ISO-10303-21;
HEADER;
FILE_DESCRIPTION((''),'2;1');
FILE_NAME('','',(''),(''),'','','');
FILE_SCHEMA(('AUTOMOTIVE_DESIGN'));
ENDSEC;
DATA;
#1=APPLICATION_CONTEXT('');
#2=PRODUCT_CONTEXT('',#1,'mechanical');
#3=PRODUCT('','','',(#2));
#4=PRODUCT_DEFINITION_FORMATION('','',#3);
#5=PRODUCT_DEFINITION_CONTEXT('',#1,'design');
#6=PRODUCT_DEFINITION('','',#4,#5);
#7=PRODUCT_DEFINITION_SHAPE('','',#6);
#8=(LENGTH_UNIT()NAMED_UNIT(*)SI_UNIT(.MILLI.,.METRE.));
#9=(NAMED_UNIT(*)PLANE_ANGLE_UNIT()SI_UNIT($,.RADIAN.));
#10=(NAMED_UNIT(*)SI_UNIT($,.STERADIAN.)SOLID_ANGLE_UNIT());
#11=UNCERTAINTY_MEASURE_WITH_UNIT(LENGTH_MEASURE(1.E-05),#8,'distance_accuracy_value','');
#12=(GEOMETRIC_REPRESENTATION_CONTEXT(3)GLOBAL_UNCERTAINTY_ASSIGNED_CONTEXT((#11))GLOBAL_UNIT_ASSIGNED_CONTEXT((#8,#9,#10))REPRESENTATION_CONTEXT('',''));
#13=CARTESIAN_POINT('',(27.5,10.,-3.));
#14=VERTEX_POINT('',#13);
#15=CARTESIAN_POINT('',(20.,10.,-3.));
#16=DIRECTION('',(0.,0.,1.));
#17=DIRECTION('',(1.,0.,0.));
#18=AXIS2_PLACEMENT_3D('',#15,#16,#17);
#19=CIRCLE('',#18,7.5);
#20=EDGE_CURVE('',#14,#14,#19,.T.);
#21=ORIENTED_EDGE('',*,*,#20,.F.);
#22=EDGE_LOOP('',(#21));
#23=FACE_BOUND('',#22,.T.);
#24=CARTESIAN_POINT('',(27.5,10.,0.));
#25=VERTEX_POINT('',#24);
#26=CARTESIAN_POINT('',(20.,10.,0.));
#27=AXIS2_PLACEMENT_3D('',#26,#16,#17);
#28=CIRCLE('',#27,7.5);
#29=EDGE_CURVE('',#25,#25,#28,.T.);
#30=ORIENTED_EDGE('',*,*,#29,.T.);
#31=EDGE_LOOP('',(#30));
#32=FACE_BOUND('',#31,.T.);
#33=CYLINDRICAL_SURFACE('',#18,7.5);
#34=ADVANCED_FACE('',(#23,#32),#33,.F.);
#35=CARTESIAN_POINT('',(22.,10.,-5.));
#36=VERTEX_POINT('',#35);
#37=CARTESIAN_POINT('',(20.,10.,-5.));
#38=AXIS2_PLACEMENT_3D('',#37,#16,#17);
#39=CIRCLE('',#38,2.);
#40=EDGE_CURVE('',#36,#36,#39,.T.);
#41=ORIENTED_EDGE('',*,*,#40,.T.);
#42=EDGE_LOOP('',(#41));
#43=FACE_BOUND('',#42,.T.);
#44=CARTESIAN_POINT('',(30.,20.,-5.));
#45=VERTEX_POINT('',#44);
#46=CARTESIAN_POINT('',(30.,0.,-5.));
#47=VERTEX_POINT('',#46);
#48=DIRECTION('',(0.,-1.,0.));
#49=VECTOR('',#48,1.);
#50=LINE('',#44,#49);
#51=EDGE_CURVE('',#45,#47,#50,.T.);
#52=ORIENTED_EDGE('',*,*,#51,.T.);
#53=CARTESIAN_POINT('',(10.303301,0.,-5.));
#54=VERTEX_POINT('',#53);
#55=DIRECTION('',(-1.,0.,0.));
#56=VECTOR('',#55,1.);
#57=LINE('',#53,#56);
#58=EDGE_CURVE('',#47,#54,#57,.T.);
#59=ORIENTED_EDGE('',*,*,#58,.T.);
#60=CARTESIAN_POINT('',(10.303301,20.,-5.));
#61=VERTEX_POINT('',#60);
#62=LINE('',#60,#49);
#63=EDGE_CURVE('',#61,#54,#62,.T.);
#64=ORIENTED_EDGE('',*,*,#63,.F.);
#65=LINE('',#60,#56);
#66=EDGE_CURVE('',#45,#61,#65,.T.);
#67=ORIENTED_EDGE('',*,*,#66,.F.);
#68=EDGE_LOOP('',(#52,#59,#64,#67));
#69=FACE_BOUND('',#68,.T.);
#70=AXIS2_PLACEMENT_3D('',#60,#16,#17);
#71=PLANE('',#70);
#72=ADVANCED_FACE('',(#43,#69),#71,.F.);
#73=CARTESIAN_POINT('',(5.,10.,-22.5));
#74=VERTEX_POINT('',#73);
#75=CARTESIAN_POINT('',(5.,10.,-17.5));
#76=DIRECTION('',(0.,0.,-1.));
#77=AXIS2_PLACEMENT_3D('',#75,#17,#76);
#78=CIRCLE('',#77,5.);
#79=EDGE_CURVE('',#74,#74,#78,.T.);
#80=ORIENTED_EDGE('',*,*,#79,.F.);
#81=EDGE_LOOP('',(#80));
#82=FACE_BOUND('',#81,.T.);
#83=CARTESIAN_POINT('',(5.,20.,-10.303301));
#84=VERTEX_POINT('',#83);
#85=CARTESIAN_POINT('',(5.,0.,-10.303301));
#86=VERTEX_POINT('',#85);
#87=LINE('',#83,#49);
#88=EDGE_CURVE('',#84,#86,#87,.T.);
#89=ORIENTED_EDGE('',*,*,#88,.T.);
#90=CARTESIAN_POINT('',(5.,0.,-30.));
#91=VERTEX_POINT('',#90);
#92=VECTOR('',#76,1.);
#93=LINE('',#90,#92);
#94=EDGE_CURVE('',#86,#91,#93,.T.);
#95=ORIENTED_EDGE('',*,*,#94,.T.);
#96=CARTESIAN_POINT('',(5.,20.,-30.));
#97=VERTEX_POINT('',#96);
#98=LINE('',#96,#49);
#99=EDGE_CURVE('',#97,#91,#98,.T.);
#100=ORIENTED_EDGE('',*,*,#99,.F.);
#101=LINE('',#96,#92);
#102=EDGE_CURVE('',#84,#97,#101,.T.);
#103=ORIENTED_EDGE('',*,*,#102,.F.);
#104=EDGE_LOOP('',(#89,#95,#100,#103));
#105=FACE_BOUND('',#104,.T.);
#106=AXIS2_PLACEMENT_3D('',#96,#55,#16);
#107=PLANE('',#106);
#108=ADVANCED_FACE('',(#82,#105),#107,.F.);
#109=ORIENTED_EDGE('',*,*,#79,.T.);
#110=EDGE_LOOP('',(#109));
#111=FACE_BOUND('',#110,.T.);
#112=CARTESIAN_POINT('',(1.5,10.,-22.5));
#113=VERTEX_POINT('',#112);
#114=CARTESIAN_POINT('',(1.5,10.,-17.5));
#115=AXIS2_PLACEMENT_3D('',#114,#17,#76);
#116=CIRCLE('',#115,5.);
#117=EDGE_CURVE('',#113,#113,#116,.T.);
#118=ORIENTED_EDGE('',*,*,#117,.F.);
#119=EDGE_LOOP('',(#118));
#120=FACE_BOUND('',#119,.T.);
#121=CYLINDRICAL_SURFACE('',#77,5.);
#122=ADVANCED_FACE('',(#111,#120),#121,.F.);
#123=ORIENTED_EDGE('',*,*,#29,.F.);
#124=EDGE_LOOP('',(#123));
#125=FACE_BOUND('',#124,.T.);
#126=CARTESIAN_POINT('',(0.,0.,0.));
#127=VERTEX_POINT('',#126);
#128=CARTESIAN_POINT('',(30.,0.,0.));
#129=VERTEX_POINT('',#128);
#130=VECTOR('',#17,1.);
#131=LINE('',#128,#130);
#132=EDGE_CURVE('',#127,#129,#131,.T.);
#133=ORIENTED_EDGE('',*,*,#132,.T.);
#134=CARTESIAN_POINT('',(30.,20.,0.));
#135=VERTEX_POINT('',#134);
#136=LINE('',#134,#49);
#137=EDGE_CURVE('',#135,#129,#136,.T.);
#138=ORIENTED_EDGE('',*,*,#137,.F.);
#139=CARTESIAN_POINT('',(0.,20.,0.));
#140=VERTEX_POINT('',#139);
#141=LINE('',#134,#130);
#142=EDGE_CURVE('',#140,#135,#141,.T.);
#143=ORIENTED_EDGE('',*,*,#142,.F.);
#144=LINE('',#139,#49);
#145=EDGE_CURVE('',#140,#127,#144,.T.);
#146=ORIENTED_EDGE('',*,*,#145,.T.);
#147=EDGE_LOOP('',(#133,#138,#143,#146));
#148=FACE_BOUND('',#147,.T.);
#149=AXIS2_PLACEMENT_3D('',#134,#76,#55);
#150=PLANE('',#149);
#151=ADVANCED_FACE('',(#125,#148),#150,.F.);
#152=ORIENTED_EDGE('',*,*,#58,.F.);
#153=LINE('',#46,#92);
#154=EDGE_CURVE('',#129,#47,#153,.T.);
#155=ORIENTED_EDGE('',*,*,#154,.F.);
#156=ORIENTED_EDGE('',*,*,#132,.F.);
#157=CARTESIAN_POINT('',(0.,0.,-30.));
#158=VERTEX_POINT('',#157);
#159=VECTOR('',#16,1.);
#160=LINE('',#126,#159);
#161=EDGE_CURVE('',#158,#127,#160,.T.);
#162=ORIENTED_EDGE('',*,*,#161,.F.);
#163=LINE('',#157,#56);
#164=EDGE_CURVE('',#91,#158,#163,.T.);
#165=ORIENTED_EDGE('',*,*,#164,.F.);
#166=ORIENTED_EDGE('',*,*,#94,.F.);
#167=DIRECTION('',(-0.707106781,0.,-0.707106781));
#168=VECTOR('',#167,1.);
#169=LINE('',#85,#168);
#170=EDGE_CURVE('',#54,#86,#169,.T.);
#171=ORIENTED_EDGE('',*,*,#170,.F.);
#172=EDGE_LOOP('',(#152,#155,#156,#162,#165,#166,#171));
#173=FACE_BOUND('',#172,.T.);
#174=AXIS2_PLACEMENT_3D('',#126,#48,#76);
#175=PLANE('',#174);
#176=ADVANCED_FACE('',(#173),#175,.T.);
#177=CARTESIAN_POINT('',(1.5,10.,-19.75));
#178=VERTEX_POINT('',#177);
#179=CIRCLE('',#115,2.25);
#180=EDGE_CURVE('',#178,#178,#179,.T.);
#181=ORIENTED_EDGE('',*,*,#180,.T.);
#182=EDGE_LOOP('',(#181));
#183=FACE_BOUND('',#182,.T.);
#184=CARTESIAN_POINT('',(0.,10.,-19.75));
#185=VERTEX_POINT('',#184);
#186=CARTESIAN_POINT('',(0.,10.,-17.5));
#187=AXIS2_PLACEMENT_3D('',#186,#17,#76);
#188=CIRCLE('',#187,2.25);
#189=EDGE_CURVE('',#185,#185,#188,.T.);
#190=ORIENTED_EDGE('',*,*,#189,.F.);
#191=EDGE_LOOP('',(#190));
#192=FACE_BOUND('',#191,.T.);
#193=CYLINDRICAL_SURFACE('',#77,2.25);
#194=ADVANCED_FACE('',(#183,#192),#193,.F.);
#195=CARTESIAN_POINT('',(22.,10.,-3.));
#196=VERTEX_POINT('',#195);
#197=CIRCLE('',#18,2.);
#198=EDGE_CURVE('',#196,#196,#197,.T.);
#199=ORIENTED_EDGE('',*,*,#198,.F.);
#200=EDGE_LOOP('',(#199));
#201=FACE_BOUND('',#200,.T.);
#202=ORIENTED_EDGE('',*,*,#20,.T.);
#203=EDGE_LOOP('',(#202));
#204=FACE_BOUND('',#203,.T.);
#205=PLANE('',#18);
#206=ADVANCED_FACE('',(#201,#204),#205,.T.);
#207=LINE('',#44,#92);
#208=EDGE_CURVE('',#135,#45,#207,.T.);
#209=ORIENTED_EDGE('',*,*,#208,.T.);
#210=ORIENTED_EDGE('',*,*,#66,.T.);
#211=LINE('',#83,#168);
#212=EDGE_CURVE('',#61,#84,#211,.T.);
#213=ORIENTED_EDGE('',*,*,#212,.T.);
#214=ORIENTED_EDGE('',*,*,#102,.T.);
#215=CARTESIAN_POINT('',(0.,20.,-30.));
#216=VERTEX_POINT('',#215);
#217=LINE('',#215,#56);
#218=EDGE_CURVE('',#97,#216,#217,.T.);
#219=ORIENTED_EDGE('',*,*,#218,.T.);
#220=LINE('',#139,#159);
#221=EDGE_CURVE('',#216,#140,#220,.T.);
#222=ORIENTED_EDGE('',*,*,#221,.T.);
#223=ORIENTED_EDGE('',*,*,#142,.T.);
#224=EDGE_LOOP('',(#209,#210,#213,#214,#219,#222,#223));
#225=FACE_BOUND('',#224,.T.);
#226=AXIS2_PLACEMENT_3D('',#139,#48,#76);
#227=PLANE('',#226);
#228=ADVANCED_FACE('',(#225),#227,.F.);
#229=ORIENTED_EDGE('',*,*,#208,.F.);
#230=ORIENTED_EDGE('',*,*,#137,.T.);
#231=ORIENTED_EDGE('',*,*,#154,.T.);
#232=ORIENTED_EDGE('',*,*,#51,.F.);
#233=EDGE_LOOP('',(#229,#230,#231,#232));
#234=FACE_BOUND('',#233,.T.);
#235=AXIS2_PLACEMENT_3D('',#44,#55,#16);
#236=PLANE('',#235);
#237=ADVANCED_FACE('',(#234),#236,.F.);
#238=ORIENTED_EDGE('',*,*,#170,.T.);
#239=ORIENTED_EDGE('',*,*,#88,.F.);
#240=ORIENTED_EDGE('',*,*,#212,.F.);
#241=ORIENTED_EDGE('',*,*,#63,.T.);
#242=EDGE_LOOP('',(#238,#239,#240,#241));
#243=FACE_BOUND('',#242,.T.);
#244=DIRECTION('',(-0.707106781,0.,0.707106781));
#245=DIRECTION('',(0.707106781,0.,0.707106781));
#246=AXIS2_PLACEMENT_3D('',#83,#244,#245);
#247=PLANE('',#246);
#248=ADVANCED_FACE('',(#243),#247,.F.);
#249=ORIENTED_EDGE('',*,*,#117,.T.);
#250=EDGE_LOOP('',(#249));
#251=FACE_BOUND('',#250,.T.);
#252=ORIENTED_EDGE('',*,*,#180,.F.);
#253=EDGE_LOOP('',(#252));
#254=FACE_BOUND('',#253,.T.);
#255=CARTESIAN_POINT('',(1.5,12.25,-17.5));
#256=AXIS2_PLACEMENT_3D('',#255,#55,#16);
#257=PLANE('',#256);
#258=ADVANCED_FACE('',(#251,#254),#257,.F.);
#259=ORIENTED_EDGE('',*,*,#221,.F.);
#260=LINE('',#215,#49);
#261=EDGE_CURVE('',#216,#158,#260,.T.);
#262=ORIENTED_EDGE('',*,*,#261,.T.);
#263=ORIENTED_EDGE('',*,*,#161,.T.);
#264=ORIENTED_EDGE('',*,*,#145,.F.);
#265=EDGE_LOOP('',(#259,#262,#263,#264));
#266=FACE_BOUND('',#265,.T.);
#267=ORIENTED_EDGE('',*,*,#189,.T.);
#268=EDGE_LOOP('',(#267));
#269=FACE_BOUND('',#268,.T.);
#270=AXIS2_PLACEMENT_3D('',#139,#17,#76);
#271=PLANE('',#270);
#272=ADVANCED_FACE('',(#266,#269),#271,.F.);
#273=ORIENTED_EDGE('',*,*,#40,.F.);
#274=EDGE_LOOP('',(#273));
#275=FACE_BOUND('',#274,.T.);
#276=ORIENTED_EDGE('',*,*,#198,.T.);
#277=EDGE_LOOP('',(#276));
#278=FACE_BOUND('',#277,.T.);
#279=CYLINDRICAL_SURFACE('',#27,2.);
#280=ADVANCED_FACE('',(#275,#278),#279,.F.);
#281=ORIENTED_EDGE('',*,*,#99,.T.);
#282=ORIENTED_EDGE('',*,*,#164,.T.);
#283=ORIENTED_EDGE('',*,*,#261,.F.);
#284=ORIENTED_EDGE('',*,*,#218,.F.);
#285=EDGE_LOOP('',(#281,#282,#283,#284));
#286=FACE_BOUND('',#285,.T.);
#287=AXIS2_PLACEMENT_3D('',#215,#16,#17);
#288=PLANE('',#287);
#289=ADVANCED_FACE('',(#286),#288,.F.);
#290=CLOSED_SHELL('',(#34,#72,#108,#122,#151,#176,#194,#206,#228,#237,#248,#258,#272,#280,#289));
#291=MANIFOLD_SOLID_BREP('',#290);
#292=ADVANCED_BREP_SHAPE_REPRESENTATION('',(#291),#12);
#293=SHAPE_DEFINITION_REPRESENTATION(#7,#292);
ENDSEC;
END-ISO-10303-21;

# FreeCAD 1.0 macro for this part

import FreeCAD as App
import Part
import Sketcher
from FreeCAD import Vector
Q = App.Units.Quantity


def add_polygon(sketch, points):
    """Adds a closed chain of lines whose ends are joined by coincident constraints."""
    first, n = sketch.GeometryCount, len(points)
    for a, b in zip(points, points[1:] + points[:1]):
        sketch.addGeometry(Part.LineSegment(App.Vector(*a, 0), App.Vector(*b, 0)), False)
    for i in range(n):
        sketch.addConstraint(Sketcher.Constraint("Coincident", first + i, 2, first + (i + 1) % n, 1))

doc = App.newDocument("Part")
body = doc.addObject("PartDesign::Body", "Body")

sketch1 = doc.addObject("Sketcher::SketchObject", "Sketch")
body.addObject(sketch1)
sketch1.AttachmentSupport = (doc.XZ_Plane, [""])
sketch1.MapMode = "FlatFace"
add_polygon(sketch1, [(5, -10.303301), (5, -30), (0, -30), (0, 0), (30, 0), (30, -5), (10.303301, -5)])
sketch1.addConstraint(Sketcher.Constraint("Vertical", 0))
sketch1.addConstraint(Sketcher.Constraint("Horizontal", 1))
sketch1.addConstraint(Sketcher.Constraint("Vertical", 2))
sketch1.addConstraint(Sketcher.Constraint("Horizontal", 3))
sketch1.addConstraint(Sketcher.Constraint("Vertical", 4))
sketch1.addConstraint(Sketcher.Constraint("Horizontal", 5))
sketch1.addConstraint(Sketcher.Constraint("Coincident", 2, 2, -1, 1))
sketch1.addConstraint(Sketcher.Constraint("Equal", 5, 0))
sketch1.addConstraint(Sketcher.Constraint("Equal", 3, 2))
sketch1.addConstraint(Sketcher.Constraint("Equal", 1, 4))
sketch1.addConstraint(Sketcher.Constraint("DistanceX", 1, 2, 1, 1, Q("5 mm")))
sketch1.addConstraint(Sketcher.Constraint("DistanceX", 3, 1, 3, 2, Q("30 mm")))
sketch1.addConstraint(Sketcher.Constraint("Distance", 6, Q("7.5 mm")))
pad1 = doc.addObject("PartDesign::Pad", "Pad")
body.addObject(pad1)
pad1.Profile = sketch1
pad1.Length = 20
pad1.Reversed = True

sketch2 = doc.addObject("Sketcher::SketchObject", "Sketch001")
body.addObject(sketch2)
sketch2.AttachmentSupport = (doc.YZ_Plane, [""])
sketch2.MapMode = "FlatFace"
sketch2.AttachmentOffset = App.Placement(Vector(0, 0, 5), App.Rotation())
sketch2.addGeometry(Part.Circle(Vector(10, -17.5, 0), Vector(0, 0, 1), 2.25), False)
sketch2.addConstraint(Sketcher.Constraint("Diameter", 0, Q("4.5 mm")))
sketch2.addConstraint(Sketcher.Constraint("DistanceX", -1, 1, 0, 3, Q("10 mm")))
sketch2.addConstraint(Sketcher.Constraint("DistanceY", 0, 3, -1, 1, Q("17.5 mm")))
doc.recompute()
hole = doc.addObject("PartDesign::Hole", "Hole")
body.addObject(hole)
hole.Profile = sketch2
hole.ThreadType = "None"
hole.Diameter = 4.5
hole.DepthType = "Dimension"
hole.Depth = 15
hole.DrillPoint = "Angled"
hole.DrillPointAngle = 118
hole.HoleCutType = "Counterbore"
hole.HoleCutDiameter = 10
hole.HoleCutDepth = 3.5

sketch3 = doc.addObject("Sketcher::SketchObject", "Sketch002")
body.addObject(sketch3)
sketch3.AttachmentSupport = (doc.XY_Plane, [""])
sketch3.MapMode = "FlatFace"
sketch3.addGeometry(Part.Circle(Vector(20, 10, 0), Vector(0, 0, 1), 7.5), False)
sketch3.addConstraint(Sketcher.Constraint("Diameter", 0, Q("15 mm")))
sketch3.addConstraint(Sketcher.Constraint("DistanceX", -1, 1, 0, 3, Q("20 mm")))
sketch3.addConstraint(Sketcher.Constraint("DistanceY", -1, 1, 0, 3, Q("10 mm")))
pocket1 = doc.addObject("PartDesign::Pocket", "Pocket")
body.addObject(pocket1)
pocket1.Profile = sketch3
pocket1.Length = 3

sketch4 = doc.addObject("Sketcher::SketchObject", "Sketch003")
body.addObject(sketch4)
sketch4.AttachmentSupport = (doc.XY_Plane, [""])
sketch4.MapMode = "FlatFace"
sketch4.addGeometry(Part.Circle(Vector(20, 10, 0), Vector(0, 0, 1), 2), False)
sketch4.addConstraint(Sketcher.Constraint("Diameter", 0, Q("4 mm")))
sketch4.addConstraint(Sketcher.Constraint("DistanceX", -1, 1, 0, 3, Q("20 mm")))
sketch4.addConstraint(Sketcher.Constraint("DistanceY", -1, 1, 0, 3, Q("10 mm")))
doc.recompute()
hole2 = doc.addObject("PartDesign::Hole", "Hole001")
body.addObject(hole2)
hole2.Profile = sketch4
hole2.ThreadType = "None"
hole2.Diameter = 4
hole2.DepthType = "Dimension"
hole2.Depth = 9
hole2.DrillPoint = "Angled"
hole2.DrillPointAngle = 118

doc.recompute()
